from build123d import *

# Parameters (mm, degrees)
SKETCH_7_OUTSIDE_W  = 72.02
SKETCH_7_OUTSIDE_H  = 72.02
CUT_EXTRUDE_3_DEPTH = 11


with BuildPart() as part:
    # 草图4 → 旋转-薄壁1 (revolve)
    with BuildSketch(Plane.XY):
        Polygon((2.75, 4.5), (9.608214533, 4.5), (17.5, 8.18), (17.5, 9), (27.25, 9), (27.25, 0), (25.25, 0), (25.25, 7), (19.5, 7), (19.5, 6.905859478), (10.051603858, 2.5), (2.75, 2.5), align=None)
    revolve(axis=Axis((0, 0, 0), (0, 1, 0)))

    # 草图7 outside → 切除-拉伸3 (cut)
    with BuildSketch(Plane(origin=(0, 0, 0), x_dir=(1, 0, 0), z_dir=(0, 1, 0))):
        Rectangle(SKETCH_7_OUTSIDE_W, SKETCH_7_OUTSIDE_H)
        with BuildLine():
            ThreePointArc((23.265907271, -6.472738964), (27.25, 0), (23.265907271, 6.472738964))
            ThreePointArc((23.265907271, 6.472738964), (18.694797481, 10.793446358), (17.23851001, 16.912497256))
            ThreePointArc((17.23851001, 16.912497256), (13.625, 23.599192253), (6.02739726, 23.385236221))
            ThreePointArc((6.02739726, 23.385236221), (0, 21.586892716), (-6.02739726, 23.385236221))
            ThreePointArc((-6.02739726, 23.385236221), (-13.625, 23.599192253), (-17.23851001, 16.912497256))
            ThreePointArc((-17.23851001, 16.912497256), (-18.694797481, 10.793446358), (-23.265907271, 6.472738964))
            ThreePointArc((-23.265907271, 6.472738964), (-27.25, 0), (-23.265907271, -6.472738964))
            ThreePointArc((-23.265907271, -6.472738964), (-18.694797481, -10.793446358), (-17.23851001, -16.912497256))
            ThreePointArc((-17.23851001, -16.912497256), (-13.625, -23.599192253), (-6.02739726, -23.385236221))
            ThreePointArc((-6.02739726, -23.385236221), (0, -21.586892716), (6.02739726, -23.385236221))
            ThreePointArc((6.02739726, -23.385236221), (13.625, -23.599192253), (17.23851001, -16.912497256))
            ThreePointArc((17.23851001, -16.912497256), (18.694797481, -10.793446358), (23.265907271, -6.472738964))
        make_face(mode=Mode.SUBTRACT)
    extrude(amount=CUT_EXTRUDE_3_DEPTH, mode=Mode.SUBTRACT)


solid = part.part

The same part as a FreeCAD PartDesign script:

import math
import FreeCAD as App
import Part
import Sketcher
Q = App.Units.Quantity

doc = App.newDocument("Part")
body = doc.addObject("PartDesign::Body", "Body")

# Sketch on XY plane
sketch1 = body.newObject("Sketcher::SketchObject", "Sketch")
sketch1.AttachmentSupport = (doc.getObject("XY_Plane"), [""])
sketch1.MapMode = "FlatFace"
sketch1.addGeometry(Part.LineSegment(App.Vector(9.61, 4.5, 0), App.Vector(2.75, 4.5, 0)), False)
sketch1.addGeometry(Part.LineSegment(App.Vector(2.75, 4.5, 0), App.Vector(2.75, 2.5, 0)), False)
sketch1.addGeometry(Part.LineSegment(App.Vector(2.75, 2.5, 0), App.Vector(10.05, 2.5, 0)), False)
sketch1.addGeometry(Part.LineSegment(App.Vector(10.05, 2.5, 0), App.Vector(19.5, 6.91, 0)), False)
sketch1.addGeometry(Part.LineSegment(App.Vector(19.5, 6.91, 0), App.Vector(19.5, 7, 0)), False)
sketch1.addGeometry(Part.LineSegment(App.Vector(19.5, 7, 0), App.Vector(25.25, 7, 0)), False)
sketch1.addGeometry(Part.LineSegment(App.Vector(25.25, 7, 0), App.Vector(25.25, 0, 0)), False)
sketch1.addGeometry(Part.LineSegment(App.Vector(25.25, 0, 0), App.Vector(27.25, 0, 0)), False)
sketch1.addGeometry(Part.LineSegment(App.Vector(27.25, 0, 0), App.Vector(27.25, 9, 0)), False)
sketch1.addGeometry(Part.LineSegment(App.Vector(27.25, 9, 0), App.Vector(17.5, 9, 0)), False)
sketch1.addGeometry(Part.LineSegment(App.Vector(17.5, 9, 0), App.Vector(17.5, 8.18, 0)), False)
sketch1.addGeometry(Part.LineSegment(App.Vector(17.5, 8.18, 0), App.Vector(9.61, 4.5, 0)), False)
sketch1.addConstraint(Sketcher.Constraint("Coincident", 0, 2, 1, 1))
sketch1.addConstraint(Sketcher.Constraint("Coincident", 1, 2, 2, 1))
sketch1.addConstraint(Sketcher.Constraint("Coincident", 2, 2, 3, 1))
sketch1.addConstraint(Sketcher.Constraint("Coincident", 3, 2, 4, 1))
sketch1.addConstraint(Sketcher.Constraint("Coincident", 4, 2, 5, 1))
sketch1.addConstraint(Sketcher.Constraint("Coincident", 5, 2, 6, 1))
sketch1.addConstraint(Sketcher.Constraint("Coincident", 6, 2, 7, 1))
sketch1.addConstraint(Sketcher.Constraint("Coincident", 7, 2, 8, 1))
sketch1.addConstraint(Sketcher.Constraint("Coincident", 8, 2, 9, 1))
sketch1.addConstraint(Sketcher.Constraint("Coincident", 9, 2, 10, 1))
sketch1.addConstraint(Sketcher.Constraint("Coincident", 10, 2, 11, 1))
sketch1.addConstraint(Sketcher.Constraint("Coincident", 11, 2, 0, 1))
sketch1.addConstraint(Sketcher.Constraint("Horizontal", 0))
sketch1.addConstraint(Sketcher.Constraint("Vertical", 1))
sketch1.addConstraint(Sketcher.Constraint("Horizontal", 2))
sketch1.addConstraint(Sketcher.Constraint("Vertical", 4))
sketch1.addConstraint(Sketcher.Constraint("Horizontal", 5))
sketch1.addConstraint(Sketcher.Constraint("Vertical", 6))
sketch1.addConstraint(Sketcher.Constraint("Horizontal", 7))
sketch1.addConstraint(Sketcher.Constraint("Vertical", 8))
sketch1.addConstraint(Sketcher.Constraint("Horizontal", 9))
sketch1.addConstraint(Sketcher.Constraint("Vertical", 10))
sketch1.addConstraint(Sketcher.Constraint("PointOnObject", 6, 2, -1))
sketch1.addConstraint(Sketcher.Constraint("Parallel", 3, 11))
sketch1.addConstraint(Sketcher.Constraint("Equal", 7, 1))
sketch1.addConstraint(Sketcher.Constraint("DistanceX", 7, 1, 7, 2, 2.0))
sketch1.addConstraint(Sketcher.Constraint("DistanceY", 6, 2, 6, 1, 7.0))
sketch1.addConstraint(Sketcher.Constraint("DistanceY", 8, 1, 8, 2, 9.0))
sketch1.addConstraint(Sketcher.Constraint("Angle", 3, Q("25 deg")))
sketch1.addConstraint(Sketcher.Constraint("DistanceX", 9, 2, 4, 2, 2.0))
sketch1.addConstraint(Sketcher.Constraint("DistanceX", 5, 1, 5, 2, 5.75))
sketch1.addConstraint(Sketcher.Constraint("DistanceY", 10, 2, 10, 1, 0.82))
sketch1.addConstraint(Sketcher.Constraint("DistanceY", -1, 1, 0, 2, 4.5))
sketch1.addConstraint(Sketcher.Constraint("DistanceX", -1, 1, 3, 2, 19.5))
sketch1.addConstraint(Sketcher.Constraint("DistanceX", 0, 2, 5, 2, 22.5))
sketch1.addConstraint(Sketcher.Constraint("DistanceY", 4, 1, 4, 2, 0.094141))
revolution = body.newObject("PartDesign::Revolution", "Revolution")
revolution.Profile = sketch1
revolution.ReferenceAxis = (sketch1, ["V_Axis"])
revolution.Angle = 360

# Sketch on XZ plane
sketch2 = body.newObject("Sketcher::SketchObject", "Sketch001")
sketch2.AttachmentSupport = (doc.getObject("XZ_Plane"), [""])
sketch2.MapMode = "FlatFace"
sketch2.addGeometry(Part.LineSegment(App.Vector(-36, -36, 0), App.Vector(-36, 36, 0)), False)
sketch2.addGeometry(Part.LineSegment(App.Vector(-36, 36, 0), App.Vector(36, 36, 0)), False)
sketch2.addGeometry(Part.LineSegment(App.Vector(36, 36, 0), App.Vector(36, -36, 0)), False)
sketch2.addGeometry(Part.LineSegment(App.Vector(36, -36, 0), App.Vector(-36, -36, 0)), False)
sketch2.addGeometry(Part.ArcOfCircle(Part.Circle(App.Vector(20, 0, 0), App.Vector(0, 0, 1), 7), math.radians(-63), math.radians(63)), False)
sketch2.addGeometry(Part.ArcOfCircle(Part.Circle(App.Vector(28, 16, 0), App.Vector(0, 0, 1), 11), math.radians(177), math.radians(243)), False)
sketch2.addGeometry(Part.ArcOfCircle(Part.Circle(App.Vector(10, 17, 0), App.Vector(0, 0, 1), 7), math.radians(-3), math.radians(123)), False)
sketch2.addGeometry(Part.ArcOfCircle(Part.Circle(App.Vector(0, 33, 0), App.Vector(0, 0, 1), 11), math.radians(-123), math.radians(-57)), False)
sketch2.addGeometry(Part.ArcOfCircle(Part.Circle(App.Vector(-10, 17, 0), App.Vector(0, 0, 1), 7), math.radians(57), math.radians(183)), False)
sketch2.addGeometry(Part.ArcOfCircle(Part.Circle(App.Vector(-28, 16, 0), App.Vector(0, 0, 1), 11), math.radians(-63), math.radians(3)), False)
sketch2.addGeometry(Part.ArcOfCircle(Part.Circle(App.Vector(-20, 0, 0), App.Vector(0, 0, 1), 7), math.radians(117), math.radians(243)), False)
sketch2.addGeometry(Part.ArcOfCircle(Part.Circle(App.Vector(-28, -16, 0), App.Vector(0, 0, 1), 11), math.radians(-3), math.radians(63)), False)
sketch2.addGeometry(Part.ArcOfCircle(Part.Circle(App.Vector(-10, -17, 0), App.Vector(0, 0, 1), 7), math.radians(177), math.radians(303)), False)
sketch2.addGeometry(Part.ArcOfCircle(Part.Circle(App.Vector(0, -33, 0), App.Vector(0, 0, 1), 11), math.radians(57), math.radians(123)), False)
sketch2.addGeometry(Part.ArcOfCircle(Part.Circle(App.Vector(10, -17, 0), App.Vector(0, 0, 1), 7), math.radians(-123), math.radians(3)), False)
sketch2.addGeometry(Part.ArcOfCircle(Part.Circle(App.Vector(28, -16, 0), App.Vector(0, 0, 1), 11), math.radians(117), math.radians(183)), False)
sketch2.addConstraint(Sketcher.Constraint("Coincident", 0, 2, 1, 1))
sketch2.addConstraint(Sketcher.Constraint("Coincident", 1, 2, 2, 1))
sketch2.addConstraint(Sketcher.Constraint("Coincident", 2, 2, 3, 1))
sketch2.addConstraint(Sketcher.Constraint("Coincident", 3, 2, 0, 1))
sketch2.addConstraint(Sketcher.Constraint("Tangent", 4, 2, 5, 2))
sketch2.addConstraint(Sketcher.Constraint("Tangent", 5, 1, 6, 1))
sketch2.addConstraint(Sketcher.Constraint("Tangent", 6, 2, 7, 2))
sketch2.addConstraint(Sketcher.Constraint("Tangent", 7, 1, 8, 1))
sketch2.addConstraint(Sketcher.Constraint("Tangent", 8, 2, 9, 2))
sketch2.addConstraint(Sketcher.Constraint("Tangent", 9, 1, 10, 1))
sketch2.addConstraint(Sketcher.Constraint("Tangent", 10, 2, 11, 2))
sketch2.addConstraint(Sketcher.Constraint("Tangent", 11, 1, 12, 1))
sketch2.addConstraint(Sketcher.Constraint("Tangent", 12, 2, 13, 2))
sketch2.addConstraint(Sketcher.Constraint("Tangent", 13, 1, 14, 1))
sketch2.addConstraint(Sketcher.Constraint("Tangent", 14, 2, 15, 2))
sketch2.addConstraint(Sketcher.Constraint("Tangent", 15, 1, 4, 1))
sketch2.addConstraint(Sketcher.Constraint("Vertical", 0))
sketch2.addConstraint(Sketcher.Constraint("Horizontal", 1))
sketch2.addConstraint(Sketcher.Constraint("Vertical", 2))
sketch2.addConstraint(Sketcher.Constraint("Horizontal", 3))
sketch2.addConstraint(Sketcher.Constraint("Equal", 4, 6))
sketch2.addConstraint(Sketcher.Constraint("Equal", 5, 7))
sketch2.addConstraint(Sketcher.Constraint("Equal", 6, 8))
sketch2.addConstraint(Sketcher.Constraint("Equal", 7, 9))
sketch2.addConstraint(Sketcher.Constraint("Equal", 8, 10))
sketch2.addConstraint(Sketcher.Constraint("Equal", 9, 11))
sketch2.addConstraint(Sketcher.Constraint("Equal", 10, 12))
sketch2.addConstraint(Sketcher.Constraint("Equal", 11, 13))
sketch2.addConstraint(Sketcher.Constraint("Equal", 12, 14))
sketch2.addConstraint(Sketcher.Constraint("Equal", 13, 15))
sketch2.addConstraint(Sketcher.Constraint("Symmetric", 4, 3, 10, 3, -1, 1))
sketch2.addConstraint(Sketcher.Constraint("Symmetric", 6, 3, 12, 3, -1, 1))
sketch2.addConstraint(Sketcher.Constraint("Symmetric", 8, 3, 14, 3, -1, 1))
sketch2.addConstraint(Sketcher.Constraint("Symmetric", 0, 2, 2, 2, -1, 1))
sketch2.addConstraint(Sketcher.Constraint("Symmetric", 6, 3, 8, 3, -2))
sketch2.addConstraint(Sketcher.Constraint("PointOnObject", 4, 3, -1))
sketch2.addConstraint(Sketcher.Constraint("Equal", 3, 0))
sketch2.addConstraint(Sketcher.Constraint("Radius", 5, 11.0))
sketch2.addConstraint(Sketcher.Constraint("Radius", 4, 7.25))
sketch2.addConstraint(Sketcher.Constraint("DistanceX", -1, 1, 4, 3, 20.0))
sketch2.addConstraint(Sketcher.Constraint("DistanceX", -1, 1, 6, 3, 10.0))
sketch2.addConstraint(Sketcher.Constraint("DistanceX", 1, 1, 1, 2, 72.02))
sketch2.addConstraint(Sketcher.Constraint("DistanceY", 13, 3, 6, 3, 49.907401))
pocket1 = body.newObject("PartDesign::Pocket", "Pocket")
pocket1.Profile = sketch2
pocket1.Length = 11

doc.recompute()
